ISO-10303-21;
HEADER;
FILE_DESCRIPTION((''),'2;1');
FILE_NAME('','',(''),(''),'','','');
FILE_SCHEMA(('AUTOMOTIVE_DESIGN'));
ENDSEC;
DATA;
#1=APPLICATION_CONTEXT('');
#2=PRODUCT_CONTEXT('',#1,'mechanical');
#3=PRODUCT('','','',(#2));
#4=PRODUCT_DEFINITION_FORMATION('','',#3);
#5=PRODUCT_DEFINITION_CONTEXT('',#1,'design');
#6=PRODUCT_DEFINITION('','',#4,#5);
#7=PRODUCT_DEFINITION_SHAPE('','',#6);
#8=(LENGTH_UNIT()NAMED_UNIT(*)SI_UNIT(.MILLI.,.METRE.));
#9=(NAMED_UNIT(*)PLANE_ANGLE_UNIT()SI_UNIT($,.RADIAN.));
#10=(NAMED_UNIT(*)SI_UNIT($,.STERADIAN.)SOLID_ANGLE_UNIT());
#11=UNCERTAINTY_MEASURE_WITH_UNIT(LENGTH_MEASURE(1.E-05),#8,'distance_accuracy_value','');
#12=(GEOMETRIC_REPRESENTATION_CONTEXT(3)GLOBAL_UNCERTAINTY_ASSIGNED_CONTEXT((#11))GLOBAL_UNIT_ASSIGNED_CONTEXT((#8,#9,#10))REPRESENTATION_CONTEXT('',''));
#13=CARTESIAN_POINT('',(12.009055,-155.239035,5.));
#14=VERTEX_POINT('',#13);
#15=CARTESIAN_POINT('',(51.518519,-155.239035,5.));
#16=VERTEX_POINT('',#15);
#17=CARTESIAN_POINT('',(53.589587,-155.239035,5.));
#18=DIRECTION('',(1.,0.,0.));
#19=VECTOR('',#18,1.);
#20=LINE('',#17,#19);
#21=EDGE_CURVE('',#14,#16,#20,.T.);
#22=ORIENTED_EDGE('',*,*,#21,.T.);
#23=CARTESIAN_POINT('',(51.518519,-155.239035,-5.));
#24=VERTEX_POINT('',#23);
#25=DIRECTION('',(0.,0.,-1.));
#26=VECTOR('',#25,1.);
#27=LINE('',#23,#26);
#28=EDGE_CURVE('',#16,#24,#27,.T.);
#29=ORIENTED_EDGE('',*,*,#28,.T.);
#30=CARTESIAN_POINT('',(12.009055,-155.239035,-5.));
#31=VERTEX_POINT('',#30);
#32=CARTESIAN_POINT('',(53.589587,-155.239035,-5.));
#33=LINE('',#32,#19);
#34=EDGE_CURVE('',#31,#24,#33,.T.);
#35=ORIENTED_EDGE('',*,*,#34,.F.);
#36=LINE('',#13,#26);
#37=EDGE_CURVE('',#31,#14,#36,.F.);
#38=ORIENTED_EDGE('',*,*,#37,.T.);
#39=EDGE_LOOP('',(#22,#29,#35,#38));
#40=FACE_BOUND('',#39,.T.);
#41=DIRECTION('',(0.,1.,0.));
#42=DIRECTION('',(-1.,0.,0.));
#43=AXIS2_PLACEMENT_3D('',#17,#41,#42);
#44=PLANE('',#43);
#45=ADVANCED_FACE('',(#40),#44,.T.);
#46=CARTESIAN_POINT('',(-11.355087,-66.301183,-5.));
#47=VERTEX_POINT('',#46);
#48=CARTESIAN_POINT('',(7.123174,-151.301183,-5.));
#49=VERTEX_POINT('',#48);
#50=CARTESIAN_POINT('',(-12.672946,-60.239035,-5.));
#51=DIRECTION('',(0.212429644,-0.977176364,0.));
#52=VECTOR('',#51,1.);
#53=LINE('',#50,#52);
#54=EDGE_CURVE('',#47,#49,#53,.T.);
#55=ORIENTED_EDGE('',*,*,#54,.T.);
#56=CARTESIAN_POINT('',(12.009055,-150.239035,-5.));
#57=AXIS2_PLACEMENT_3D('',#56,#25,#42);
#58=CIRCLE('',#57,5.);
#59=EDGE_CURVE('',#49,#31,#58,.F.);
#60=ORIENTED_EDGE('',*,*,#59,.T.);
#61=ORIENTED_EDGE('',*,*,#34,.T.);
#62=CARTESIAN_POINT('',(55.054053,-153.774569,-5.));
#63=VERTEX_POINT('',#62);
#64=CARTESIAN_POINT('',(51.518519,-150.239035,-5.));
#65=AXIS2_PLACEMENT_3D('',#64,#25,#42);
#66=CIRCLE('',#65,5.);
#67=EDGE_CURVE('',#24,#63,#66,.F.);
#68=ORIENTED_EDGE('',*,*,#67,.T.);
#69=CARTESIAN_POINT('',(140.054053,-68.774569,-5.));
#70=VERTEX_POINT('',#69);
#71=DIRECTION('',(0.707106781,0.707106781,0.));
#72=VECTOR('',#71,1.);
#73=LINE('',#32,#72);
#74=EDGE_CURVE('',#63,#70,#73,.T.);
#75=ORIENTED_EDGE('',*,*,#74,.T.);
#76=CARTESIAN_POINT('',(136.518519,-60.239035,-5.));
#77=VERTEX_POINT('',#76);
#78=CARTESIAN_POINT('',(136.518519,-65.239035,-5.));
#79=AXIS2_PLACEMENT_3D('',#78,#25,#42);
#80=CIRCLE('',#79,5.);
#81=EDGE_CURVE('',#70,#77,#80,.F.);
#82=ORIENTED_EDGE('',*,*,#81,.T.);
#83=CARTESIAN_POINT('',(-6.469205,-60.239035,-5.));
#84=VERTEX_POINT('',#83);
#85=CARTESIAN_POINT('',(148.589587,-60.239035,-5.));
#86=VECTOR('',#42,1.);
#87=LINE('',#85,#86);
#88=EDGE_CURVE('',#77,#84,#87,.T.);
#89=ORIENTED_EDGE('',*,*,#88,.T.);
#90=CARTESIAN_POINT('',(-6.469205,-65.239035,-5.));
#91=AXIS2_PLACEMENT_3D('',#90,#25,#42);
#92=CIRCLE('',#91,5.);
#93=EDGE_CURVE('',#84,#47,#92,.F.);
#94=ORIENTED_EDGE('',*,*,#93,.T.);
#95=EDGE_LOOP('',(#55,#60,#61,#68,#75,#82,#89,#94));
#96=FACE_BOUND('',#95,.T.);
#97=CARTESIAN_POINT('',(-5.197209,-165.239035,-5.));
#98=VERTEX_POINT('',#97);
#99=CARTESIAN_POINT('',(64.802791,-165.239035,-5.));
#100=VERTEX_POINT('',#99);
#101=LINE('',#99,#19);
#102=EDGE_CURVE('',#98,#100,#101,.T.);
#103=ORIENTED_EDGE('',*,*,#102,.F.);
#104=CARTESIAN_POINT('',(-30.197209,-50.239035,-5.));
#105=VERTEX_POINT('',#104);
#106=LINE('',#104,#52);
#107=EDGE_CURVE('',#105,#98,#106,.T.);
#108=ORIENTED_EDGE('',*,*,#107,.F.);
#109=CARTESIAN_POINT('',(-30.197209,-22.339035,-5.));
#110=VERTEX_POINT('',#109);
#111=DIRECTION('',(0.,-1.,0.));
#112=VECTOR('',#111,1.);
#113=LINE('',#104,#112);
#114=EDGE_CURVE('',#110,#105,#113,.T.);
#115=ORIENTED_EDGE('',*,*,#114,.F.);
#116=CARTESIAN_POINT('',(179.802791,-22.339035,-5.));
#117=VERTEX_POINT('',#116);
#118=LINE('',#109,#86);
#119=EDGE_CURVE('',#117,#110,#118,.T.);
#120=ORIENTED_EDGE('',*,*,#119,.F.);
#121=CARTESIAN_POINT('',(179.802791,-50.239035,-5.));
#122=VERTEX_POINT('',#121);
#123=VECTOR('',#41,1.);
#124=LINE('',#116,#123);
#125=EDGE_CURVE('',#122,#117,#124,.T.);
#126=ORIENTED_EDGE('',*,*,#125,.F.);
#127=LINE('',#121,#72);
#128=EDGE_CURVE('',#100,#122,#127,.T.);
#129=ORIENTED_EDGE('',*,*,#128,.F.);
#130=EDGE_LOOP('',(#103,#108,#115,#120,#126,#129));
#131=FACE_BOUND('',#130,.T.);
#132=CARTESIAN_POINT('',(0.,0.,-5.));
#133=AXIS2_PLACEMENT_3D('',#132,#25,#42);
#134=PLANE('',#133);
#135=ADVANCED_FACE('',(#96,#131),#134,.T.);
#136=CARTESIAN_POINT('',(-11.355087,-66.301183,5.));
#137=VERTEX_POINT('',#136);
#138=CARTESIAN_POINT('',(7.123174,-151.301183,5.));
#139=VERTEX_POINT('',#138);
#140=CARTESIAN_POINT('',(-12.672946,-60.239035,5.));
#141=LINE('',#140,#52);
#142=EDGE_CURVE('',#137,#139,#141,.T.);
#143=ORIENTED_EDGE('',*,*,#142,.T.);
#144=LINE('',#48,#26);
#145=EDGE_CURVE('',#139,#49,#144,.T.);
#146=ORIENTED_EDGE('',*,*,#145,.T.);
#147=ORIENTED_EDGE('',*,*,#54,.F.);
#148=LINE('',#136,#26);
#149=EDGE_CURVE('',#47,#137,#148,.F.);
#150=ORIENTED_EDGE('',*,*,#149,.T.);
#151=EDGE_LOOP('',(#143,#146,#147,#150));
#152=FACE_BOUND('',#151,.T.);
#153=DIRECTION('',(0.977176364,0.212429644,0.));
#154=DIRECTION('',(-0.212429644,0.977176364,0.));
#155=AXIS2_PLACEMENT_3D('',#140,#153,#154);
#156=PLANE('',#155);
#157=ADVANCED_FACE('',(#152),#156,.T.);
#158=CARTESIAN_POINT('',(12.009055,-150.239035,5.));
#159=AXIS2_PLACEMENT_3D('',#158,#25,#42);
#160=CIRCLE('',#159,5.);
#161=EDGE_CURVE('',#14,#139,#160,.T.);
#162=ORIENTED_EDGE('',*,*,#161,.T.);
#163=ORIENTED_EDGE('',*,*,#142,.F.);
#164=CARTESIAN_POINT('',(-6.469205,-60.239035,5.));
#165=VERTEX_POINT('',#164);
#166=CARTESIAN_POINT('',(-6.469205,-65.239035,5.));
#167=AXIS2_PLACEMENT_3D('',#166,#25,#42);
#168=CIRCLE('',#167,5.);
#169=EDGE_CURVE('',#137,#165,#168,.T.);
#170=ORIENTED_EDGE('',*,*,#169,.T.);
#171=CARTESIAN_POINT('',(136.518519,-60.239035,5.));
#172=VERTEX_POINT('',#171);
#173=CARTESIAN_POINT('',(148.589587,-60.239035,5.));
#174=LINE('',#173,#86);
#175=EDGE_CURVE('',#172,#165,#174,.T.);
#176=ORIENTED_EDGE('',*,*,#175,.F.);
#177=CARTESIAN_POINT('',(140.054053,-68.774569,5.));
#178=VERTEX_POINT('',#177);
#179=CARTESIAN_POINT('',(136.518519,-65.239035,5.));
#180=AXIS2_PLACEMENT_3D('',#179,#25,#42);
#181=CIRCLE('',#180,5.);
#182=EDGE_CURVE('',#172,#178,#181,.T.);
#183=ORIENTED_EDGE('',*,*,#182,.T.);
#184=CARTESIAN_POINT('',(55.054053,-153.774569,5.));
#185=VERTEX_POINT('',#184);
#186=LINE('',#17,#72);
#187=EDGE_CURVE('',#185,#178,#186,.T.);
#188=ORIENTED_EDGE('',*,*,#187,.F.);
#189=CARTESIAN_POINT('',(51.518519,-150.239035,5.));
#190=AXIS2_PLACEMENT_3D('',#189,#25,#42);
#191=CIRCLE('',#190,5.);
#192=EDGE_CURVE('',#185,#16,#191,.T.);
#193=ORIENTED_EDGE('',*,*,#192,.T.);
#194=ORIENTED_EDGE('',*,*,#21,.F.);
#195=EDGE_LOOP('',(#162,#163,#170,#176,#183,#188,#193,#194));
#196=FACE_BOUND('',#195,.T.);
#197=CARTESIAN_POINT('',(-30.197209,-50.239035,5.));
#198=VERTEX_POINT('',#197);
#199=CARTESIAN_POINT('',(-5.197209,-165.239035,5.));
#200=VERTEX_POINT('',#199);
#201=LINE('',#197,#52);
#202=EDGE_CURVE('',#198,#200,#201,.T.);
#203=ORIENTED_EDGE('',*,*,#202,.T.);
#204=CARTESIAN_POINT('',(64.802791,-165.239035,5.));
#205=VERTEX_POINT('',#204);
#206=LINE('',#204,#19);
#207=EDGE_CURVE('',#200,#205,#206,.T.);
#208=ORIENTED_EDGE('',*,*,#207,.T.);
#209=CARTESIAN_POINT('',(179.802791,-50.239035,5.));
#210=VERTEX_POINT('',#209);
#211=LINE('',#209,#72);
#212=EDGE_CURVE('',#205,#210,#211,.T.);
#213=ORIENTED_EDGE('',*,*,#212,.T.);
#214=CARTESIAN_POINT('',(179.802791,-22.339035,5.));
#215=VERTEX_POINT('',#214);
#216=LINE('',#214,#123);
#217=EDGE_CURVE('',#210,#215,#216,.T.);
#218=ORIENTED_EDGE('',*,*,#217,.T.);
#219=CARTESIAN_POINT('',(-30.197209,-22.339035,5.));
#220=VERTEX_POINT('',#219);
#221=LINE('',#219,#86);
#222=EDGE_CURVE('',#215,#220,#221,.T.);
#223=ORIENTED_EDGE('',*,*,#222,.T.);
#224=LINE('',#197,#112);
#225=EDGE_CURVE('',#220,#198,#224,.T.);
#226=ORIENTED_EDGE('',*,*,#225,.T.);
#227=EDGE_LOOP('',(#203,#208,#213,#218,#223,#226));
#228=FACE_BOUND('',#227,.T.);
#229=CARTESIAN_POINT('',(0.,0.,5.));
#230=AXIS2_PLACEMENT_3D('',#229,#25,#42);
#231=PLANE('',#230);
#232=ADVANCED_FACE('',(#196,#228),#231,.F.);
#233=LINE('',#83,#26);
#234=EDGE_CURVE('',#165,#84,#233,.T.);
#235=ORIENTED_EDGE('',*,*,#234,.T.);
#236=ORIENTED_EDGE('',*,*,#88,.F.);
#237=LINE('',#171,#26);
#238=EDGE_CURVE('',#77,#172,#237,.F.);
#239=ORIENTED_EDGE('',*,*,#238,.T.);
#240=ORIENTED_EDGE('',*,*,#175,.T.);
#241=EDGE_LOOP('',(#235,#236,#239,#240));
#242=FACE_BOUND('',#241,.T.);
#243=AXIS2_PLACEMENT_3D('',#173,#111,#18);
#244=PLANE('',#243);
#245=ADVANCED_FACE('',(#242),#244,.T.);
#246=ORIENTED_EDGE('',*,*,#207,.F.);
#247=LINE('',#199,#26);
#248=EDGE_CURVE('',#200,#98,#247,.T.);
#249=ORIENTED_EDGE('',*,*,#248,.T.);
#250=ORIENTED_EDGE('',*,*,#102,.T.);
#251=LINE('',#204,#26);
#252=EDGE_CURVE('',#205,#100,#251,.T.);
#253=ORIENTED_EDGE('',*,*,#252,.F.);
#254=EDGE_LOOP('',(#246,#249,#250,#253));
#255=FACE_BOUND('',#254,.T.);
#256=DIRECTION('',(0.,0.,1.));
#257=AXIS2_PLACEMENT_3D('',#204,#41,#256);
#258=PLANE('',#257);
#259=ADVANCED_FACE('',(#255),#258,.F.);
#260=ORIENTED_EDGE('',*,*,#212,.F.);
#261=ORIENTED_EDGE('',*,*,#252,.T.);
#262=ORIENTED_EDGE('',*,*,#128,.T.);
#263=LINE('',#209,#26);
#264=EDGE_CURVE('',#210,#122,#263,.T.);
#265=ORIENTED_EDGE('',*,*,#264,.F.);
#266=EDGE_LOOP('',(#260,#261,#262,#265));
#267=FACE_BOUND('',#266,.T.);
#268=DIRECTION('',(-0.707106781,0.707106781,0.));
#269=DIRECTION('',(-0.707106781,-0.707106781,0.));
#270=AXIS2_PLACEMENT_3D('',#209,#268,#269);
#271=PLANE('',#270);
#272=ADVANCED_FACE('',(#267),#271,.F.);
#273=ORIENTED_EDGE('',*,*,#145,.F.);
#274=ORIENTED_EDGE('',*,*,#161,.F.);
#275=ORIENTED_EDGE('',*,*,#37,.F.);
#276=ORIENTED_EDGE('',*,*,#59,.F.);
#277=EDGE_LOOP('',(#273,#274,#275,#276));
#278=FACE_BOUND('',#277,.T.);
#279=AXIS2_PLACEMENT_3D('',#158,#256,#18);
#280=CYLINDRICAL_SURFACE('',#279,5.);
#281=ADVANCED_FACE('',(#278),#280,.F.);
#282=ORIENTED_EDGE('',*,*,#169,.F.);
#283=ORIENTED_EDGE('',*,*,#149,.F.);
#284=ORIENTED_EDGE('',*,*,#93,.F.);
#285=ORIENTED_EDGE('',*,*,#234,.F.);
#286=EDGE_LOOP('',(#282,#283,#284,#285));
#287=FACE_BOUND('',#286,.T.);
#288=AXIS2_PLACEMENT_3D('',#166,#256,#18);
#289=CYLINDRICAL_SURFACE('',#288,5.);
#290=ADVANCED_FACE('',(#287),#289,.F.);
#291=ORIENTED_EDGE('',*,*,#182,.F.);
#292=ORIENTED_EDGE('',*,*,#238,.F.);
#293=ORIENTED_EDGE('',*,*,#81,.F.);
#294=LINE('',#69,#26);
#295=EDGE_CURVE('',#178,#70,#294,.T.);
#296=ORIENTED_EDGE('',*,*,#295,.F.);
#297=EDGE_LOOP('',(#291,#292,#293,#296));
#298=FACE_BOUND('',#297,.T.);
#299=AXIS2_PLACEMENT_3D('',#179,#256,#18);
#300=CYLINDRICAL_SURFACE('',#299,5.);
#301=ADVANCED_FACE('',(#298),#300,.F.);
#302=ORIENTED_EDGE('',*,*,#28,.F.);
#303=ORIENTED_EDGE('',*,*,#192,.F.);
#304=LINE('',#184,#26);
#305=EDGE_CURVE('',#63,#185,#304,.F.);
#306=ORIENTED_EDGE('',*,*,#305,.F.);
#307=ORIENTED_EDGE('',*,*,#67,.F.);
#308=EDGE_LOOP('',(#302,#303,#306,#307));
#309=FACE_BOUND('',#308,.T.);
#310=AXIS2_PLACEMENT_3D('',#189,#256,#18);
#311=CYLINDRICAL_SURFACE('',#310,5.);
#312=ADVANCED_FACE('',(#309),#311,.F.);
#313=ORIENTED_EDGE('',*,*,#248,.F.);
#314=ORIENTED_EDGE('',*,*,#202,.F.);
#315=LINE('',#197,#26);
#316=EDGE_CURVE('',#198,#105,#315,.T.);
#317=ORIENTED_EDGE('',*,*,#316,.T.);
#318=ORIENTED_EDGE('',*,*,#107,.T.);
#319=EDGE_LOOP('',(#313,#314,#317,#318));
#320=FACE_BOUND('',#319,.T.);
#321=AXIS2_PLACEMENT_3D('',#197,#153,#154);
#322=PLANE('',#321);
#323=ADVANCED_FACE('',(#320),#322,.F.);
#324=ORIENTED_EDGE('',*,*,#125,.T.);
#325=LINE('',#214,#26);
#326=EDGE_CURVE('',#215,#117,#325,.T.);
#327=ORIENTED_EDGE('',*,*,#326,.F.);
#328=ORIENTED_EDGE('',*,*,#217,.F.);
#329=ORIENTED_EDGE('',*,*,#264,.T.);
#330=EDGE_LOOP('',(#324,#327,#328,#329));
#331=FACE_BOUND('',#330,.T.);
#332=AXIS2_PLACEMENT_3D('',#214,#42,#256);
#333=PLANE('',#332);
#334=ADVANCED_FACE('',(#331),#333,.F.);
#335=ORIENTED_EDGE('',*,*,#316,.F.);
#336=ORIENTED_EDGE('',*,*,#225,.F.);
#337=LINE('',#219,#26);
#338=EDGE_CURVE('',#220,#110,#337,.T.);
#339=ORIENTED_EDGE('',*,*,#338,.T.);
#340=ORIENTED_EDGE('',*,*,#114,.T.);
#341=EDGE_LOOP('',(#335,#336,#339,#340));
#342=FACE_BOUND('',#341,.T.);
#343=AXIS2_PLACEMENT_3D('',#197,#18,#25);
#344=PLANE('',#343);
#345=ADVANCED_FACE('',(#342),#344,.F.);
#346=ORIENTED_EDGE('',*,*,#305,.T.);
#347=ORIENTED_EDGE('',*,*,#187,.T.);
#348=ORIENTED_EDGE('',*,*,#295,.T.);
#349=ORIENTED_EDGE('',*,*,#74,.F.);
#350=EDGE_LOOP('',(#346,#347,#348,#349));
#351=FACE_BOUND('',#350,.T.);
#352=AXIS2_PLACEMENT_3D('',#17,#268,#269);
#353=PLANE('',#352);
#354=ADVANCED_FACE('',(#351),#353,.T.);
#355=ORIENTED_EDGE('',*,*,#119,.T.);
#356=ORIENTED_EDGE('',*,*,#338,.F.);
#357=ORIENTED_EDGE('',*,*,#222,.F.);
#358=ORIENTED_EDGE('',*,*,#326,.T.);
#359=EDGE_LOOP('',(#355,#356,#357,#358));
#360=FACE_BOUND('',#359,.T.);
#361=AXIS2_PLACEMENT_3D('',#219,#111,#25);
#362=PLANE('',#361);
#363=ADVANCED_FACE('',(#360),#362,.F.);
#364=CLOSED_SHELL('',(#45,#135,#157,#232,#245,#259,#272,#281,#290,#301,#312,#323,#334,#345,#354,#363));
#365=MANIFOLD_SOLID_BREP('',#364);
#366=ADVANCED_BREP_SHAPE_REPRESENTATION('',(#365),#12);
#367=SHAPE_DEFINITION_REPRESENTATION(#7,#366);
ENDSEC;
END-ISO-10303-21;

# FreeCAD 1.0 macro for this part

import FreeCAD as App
import Part
import Sketcher
from FreeCAD import Vector
Q = App.Units.Quantity


def edges_at(feature, points):
    """Names of the edges that pass closest to the given points."""
    edges = feature.Shape.Edges
    near = lambda p: min(range(len(edges)), key=lambda i: edges[i].distToShape(Part.Vertex(*p))[0])
    return sorted({f"Edge{near(p) + 1}" for p in points})

doc = App.newDocument("Part")
body = doc.addObject("PartDesign::Body", "Body")

# Sketch on XY plane
sketch1 = body.newObject("Sketcher::SketchObject", "Sketch")
sketch1.AttachmentSupport = (doc.getObject("XY_Plane"), [""])
sketch1.MapMode = "FlatFace"
sketch1.addGeometry([
    Part.LineSegment(Vector(-30, -50, 0), Vector(-5, -165, 0)),  # 0
    Part.LineSegment(Vector(-5, -165, 0), Vector(65, -165, 0)),  # 1
    Part.LineSegment(Vector(65, -165, 0), Vector(180, -50, 0)),  # 2
    Part.LineSegment(Vector(180, -50, 0), Vector(180, -22, 0)),  # 3
    Part.LineSegment(Vector(180, -22, 0), Vector(-30, -22, 0)),  # 4
    Part.LineSegment(Vector(-30, -22, 0), Vector(-30, -50, 0)),  # 5
    Part.LineSegment(Vector(149, -60, 0), Vector(54, -155, 0)),  # 6
    Part.LineSegment(Vector(54, -155, 0), Vector(8, -155, 0)),  # 7
    Part.LineSegment(Vector(8, -155, 0), Vector(-13, -60, 0)),  # 8
    Part.LineSegment(Vector(-13, -60, 0), Vector(149, -60, 0)),  # 9
], False)
sketch1.addConstraint([
    Sketcher.Constraint("Coincident", 0, 2, 1, 1),
    Sketcher.Constraint("Coincident", 1, 2, 2, 1),
    Sketcher.Constraint("Coincident", 2, 2, 3, 1),
    Sketcher.Constraint("Coincident", 3, 2, 4, 1),
    Sketcher.Constraint("Coincident", 4, 2, 5, 1),
    Sketcher.Constraint("Coincident", 5, 2, 0, 1),
    Sketcher.Constraint("Coincident", 6, 2, 7, 1),
    Sketcher.Constraint("Coincident", 7, 2, 8, 1),
    Sketcher.Constraint("Coincident", 8, 2, 9, 1),
    Sketcher.Constraint("Coincident", 9, 2, 6, 1),
    Sketcher.Constraint("Horizontal", 1),
    Sketcher.Constraint("Vertical", 3),
    Sketcher.Constraint("Horizontal", 4),
    Sketcher.Constraint("Vertical", 5),
    Sketcher.Constraint("Horizontal", 7),
    Sketcher.Constraint("Horizontal", 9),
    Sketcher.Constraint("Parallel", 2, 6),
    Sketcher.Constraint("Parallel", 0, 8),
    Sketcher.Constraint("Horizontal", 2, 2, 5, 2),
    Sketcher.Constraint("DistanceX", 1, 1, 1, 2, 70.0),
    Sketcher.Constraint("DistanceX", 4, 2, 4, 1, 210.0),
    Sketcher.Constraint("Angle", 2, Q("45 deg")),
    Sketcher.Constraint("DistanceY", 3, 1, 3, 2, 27.9),
    Sketcher.Constraint("DistanceX", 1, 2, 2, 2, 115.0),
    Sketcher.Constraint("DistanceY", 1, 2, 6, 2, 10.0),
    Sketcher.Constraint("DistanceY", 8, 2, 5, 2, 10.0),
    Sketcher.Constraint("DistanceX", 7, 2, 7, 1, 45.610359),
    Sketcher.Constraint("DistanceX", 0, 2, -1, 1, 5.197209),
    Sketcher.Constraint("DistanceX", -1, 1, 7, 2, 7.979228),
    Sketcher.Constraint("DistanceY", 0, 2, -1, 1, 165.239035),
])
pad1 = body.newObject("PartDesign::Pad", "Pad")
pad1.Profile = sketch1
pad1.Length = 10
pad1.Midplane = True
doc.recompute()

fillet = body.newObject("PartDesign::Fillet", "Fillet")
fillet.Base = (pad1, edges_at(pad1, [
    (7.979, -155.239, 0),
    (53.59, -155.239, 0),
    (148.59, -60.239, 0),
    (-12.673, -60.239, 0),
]))
fillet.Radius = 5

doc.recompute()
